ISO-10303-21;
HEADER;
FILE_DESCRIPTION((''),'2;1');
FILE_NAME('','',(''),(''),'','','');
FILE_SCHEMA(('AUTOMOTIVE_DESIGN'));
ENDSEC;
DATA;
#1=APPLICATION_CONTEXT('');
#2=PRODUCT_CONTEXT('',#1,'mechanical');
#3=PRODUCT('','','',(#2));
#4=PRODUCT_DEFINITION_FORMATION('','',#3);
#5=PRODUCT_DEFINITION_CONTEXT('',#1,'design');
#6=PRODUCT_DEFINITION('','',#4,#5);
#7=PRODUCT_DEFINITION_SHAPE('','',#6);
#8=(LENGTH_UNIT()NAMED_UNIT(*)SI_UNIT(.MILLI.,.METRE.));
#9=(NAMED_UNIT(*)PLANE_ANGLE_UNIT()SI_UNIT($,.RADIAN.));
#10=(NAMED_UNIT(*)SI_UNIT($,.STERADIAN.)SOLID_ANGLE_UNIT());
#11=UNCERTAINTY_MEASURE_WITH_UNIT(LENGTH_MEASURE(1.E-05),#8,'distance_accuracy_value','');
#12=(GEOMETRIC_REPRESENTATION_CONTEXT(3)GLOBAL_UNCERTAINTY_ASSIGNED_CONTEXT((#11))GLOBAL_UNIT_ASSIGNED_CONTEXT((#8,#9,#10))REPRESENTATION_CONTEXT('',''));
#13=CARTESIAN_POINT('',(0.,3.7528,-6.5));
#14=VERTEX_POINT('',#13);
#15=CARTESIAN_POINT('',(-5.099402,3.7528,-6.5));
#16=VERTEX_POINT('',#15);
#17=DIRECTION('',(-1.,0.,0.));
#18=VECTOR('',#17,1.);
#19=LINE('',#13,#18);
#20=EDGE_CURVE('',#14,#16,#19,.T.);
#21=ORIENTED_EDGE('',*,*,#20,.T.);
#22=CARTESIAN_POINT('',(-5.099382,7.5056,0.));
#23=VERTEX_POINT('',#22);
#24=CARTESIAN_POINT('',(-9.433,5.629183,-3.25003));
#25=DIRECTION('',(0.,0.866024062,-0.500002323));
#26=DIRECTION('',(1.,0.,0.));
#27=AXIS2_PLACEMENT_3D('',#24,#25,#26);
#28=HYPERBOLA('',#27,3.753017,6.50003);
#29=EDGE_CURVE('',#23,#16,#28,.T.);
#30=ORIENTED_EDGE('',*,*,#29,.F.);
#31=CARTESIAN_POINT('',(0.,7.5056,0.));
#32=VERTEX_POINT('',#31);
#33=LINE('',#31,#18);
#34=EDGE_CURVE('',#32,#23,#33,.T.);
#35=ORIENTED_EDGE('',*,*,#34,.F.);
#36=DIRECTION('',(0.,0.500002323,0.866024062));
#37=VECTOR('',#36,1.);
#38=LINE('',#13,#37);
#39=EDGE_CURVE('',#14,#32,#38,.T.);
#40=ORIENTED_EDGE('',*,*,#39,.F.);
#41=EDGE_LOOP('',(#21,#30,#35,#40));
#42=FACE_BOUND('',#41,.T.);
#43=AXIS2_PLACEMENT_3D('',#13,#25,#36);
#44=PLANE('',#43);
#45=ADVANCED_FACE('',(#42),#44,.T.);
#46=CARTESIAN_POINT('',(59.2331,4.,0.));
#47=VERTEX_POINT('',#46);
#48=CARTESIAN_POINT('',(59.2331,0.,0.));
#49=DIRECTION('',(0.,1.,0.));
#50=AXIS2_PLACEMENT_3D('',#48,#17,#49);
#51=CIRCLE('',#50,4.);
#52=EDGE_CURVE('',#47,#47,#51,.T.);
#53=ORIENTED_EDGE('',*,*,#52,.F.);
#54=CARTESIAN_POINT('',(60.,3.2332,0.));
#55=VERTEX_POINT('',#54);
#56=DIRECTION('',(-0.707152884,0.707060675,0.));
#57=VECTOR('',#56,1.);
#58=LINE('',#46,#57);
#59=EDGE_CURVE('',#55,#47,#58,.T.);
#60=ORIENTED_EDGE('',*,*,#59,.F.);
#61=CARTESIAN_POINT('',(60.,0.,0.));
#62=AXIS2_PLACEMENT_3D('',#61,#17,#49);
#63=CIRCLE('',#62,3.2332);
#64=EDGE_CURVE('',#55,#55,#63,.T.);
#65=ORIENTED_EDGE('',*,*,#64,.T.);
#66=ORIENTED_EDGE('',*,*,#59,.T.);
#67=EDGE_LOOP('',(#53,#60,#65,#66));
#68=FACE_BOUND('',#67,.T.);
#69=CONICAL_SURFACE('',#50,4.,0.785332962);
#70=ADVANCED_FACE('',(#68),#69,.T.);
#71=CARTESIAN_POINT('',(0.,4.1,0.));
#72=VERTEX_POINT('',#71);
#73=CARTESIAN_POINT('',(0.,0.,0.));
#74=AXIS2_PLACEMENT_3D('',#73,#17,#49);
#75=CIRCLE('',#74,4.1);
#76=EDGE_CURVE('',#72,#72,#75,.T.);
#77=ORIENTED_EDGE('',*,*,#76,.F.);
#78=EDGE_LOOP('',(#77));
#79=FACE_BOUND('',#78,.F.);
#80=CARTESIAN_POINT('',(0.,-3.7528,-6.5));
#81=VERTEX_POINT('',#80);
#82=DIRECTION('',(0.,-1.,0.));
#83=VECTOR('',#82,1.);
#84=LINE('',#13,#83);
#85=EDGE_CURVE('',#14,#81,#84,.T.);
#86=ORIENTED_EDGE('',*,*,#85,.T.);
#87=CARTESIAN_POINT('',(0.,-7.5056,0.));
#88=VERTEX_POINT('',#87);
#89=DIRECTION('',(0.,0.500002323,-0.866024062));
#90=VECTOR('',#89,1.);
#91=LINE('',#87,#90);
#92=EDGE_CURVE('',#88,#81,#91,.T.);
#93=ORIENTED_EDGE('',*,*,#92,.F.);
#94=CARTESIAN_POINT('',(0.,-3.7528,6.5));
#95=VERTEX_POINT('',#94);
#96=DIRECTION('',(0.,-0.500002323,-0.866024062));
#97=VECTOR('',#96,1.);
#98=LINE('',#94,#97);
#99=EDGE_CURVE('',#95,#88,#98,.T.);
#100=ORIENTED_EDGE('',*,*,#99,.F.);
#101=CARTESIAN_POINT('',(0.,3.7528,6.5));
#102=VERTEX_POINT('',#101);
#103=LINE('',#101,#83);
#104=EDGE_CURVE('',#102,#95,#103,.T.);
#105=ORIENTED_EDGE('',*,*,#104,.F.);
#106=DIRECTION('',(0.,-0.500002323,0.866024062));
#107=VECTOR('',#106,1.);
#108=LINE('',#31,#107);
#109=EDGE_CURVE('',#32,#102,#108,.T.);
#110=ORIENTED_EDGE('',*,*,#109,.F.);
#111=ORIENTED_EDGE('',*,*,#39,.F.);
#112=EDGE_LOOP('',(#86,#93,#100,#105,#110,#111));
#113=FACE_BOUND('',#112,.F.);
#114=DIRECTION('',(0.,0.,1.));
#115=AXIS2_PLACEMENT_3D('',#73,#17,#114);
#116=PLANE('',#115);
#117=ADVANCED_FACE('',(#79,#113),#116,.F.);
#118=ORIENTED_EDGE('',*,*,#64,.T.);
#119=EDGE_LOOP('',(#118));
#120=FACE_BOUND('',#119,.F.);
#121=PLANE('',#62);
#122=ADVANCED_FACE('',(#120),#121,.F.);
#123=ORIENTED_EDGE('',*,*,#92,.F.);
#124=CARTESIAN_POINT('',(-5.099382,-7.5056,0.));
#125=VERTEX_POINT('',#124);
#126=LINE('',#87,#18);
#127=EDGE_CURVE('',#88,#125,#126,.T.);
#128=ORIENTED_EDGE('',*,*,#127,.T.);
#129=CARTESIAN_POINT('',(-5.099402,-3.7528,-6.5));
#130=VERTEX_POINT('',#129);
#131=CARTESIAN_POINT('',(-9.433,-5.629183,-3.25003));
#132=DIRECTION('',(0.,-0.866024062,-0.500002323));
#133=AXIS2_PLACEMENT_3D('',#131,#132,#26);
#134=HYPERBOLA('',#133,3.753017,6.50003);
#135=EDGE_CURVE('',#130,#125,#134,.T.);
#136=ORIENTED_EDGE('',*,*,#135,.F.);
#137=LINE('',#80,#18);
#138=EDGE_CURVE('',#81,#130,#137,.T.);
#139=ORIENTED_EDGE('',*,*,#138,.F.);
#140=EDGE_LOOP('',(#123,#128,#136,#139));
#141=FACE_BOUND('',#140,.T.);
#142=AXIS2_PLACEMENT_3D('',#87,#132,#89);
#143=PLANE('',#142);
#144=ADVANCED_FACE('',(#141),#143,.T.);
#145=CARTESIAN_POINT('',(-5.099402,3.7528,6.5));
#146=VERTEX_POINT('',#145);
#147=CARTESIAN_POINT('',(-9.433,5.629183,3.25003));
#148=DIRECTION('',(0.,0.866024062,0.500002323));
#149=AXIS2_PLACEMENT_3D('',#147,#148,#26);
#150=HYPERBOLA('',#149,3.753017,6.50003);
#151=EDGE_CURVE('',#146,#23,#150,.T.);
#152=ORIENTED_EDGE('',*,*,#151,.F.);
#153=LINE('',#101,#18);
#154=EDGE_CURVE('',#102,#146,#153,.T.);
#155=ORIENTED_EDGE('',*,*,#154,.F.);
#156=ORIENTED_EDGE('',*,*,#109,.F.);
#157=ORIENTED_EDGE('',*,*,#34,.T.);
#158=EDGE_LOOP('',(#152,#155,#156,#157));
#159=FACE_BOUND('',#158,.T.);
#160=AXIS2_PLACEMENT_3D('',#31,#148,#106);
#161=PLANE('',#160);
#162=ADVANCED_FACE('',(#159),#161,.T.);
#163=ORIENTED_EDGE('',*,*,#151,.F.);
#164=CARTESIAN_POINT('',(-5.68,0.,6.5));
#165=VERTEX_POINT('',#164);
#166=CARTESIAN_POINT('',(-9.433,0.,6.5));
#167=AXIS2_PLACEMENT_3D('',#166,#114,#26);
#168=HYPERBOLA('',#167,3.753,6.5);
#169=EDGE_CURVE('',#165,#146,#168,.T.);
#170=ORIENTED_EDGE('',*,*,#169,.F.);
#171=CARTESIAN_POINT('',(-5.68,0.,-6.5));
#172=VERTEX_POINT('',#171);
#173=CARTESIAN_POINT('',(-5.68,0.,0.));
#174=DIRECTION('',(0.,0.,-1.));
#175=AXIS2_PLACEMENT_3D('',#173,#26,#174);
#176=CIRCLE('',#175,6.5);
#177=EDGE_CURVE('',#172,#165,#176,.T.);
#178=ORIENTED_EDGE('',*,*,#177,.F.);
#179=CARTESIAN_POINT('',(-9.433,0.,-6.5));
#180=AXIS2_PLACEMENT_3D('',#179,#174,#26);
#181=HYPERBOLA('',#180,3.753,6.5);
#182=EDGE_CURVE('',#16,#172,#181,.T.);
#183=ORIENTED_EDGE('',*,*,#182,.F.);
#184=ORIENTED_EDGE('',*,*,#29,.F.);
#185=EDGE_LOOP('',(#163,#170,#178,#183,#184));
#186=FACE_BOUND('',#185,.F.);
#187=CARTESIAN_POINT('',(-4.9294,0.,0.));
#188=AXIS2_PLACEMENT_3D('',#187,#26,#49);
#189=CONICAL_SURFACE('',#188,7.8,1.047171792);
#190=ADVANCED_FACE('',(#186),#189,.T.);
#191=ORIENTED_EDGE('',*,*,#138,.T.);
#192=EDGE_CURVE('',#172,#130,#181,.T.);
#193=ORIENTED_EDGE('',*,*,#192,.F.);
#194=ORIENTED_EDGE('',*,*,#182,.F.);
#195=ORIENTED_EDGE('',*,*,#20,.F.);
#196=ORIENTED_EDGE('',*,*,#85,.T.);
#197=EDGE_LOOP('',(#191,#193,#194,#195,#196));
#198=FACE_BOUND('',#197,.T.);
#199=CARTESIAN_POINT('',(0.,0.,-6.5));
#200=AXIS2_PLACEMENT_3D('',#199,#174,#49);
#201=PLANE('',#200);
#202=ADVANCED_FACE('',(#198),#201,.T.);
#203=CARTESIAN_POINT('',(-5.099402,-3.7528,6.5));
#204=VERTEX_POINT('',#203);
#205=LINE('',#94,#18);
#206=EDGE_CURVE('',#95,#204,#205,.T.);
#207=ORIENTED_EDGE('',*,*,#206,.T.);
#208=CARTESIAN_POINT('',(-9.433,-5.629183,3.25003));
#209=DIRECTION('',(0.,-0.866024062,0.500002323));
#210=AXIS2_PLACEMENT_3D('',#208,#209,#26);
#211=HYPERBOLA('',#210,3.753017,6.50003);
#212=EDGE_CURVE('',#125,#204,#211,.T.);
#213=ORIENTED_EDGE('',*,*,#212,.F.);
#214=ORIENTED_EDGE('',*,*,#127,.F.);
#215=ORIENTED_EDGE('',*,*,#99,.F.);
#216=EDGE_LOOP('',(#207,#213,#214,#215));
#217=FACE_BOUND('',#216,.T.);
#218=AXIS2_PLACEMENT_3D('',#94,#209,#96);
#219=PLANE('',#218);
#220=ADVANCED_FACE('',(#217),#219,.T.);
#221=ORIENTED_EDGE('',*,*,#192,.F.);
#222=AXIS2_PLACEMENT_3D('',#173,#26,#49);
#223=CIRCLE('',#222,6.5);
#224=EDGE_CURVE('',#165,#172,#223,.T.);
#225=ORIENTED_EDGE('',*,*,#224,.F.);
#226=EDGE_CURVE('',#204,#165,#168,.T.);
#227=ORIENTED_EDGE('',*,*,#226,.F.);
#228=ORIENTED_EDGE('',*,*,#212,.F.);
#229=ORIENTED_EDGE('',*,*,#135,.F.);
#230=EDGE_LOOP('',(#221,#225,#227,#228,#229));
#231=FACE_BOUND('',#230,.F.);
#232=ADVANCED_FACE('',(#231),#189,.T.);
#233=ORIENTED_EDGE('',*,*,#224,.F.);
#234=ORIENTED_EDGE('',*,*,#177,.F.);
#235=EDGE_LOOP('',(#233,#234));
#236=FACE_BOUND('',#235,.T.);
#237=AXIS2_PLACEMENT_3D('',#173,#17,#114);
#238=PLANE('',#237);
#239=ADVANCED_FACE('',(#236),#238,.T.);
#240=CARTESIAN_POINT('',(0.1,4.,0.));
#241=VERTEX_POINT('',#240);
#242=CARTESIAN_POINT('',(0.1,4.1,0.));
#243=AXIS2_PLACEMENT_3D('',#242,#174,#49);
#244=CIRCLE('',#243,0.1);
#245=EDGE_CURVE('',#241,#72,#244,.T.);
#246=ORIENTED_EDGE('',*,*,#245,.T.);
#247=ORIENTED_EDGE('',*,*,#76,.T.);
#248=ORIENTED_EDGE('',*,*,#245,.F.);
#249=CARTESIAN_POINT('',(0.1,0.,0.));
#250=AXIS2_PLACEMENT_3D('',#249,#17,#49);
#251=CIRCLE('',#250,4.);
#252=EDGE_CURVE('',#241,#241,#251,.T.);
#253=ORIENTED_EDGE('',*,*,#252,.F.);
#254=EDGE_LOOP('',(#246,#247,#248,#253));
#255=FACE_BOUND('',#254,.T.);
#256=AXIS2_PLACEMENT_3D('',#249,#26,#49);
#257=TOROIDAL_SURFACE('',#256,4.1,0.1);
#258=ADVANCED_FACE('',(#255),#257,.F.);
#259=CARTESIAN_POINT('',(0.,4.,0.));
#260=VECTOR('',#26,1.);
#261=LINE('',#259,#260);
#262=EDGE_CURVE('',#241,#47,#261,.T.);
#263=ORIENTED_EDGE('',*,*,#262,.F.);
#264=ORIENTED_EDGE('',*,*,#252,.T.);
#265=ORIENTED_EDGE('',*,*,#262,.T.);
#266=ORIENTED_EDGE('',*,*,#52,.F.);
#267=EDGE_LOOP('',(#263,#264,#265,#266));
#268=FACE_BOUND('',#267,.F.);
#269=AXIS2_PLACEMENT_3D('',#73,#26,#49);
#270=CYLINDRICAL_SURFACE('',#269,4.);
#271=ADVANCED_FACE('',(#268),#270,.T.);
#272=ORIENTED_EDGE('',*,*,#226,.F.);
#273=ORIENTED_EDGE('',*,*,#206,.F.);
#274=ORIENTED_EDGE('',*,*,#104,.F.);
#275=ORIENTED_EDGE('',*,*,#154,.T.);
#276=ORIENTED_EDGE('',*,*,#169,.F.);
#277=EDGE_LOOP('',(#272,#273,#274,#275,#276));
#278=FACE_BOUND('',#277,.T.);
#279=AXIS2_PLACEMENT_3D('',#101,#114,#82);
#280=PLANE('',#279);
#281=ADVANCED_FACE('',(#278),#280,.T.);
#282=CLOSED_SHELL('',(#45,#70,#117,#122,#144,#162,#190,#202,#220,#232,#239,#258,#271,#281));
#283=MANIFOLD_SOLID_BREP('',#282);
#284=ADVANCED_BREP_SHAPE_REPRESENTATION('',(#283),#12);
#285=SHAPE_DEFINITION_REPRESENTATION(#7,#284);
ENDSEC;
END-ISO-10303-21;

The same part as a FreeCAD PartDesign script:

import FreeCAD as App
import Part
import Sketcher
Q = App.Units.Quantity


def edges_at(feature, points):
    """Names of the edges that pass closest to the given points."""
    edges = feature.Shape.Edges
    near = lambda p: min(range(len(edges)), key=lambda i: edges[i].distToShape(Part.Vertex(*p))[0])
    return sorted({f"Edge{near(p) + 1}" for p in points})


def add_polygon(sketch, points):
    """Adds a closed chain of lines whose ends are joined by coincident constraints."""
    first, n = sketch.GeometryCount, len(points)
    for a, b in zip(points, points[1:] + points[:1]):
        sketch.addGeometry(Part.LineSegment(App.Vector(*a, 0), App.Vector(*b, 0)), False)
    for i in range(n):
        sketch.addConstraint(Sketcher.Constraint("Coincident", first + i, 2, first + (i + 1) % n, 1))

doc = App.newDocument("Part")
body = doc.addObject("PartDesign::Body", "Body")

# Sketch on XY plane
sketch1 = doc.addObject("Sketcher::SketchObject", "Sketch")
body.addObject(sketch1)
sketch1.AttachmentSupport = (doc.XY_Plane, [""])
sketch1.MapMode = "FlatFace"
add_polygon(sketch1, [(60, 4), (0, 4), (0, 0), (60, 0)])  # lines 0-3
sketch1.addConstraint(Sketcher.Constraint("Horizontal", 0))
sketch1.addConstraint(Sketcher.Constraint("Vertical", 1))
sketch1.addConstraint(Sketcher.Constraint("Horizontal", 2))
sketch1.addConstraint(Sketcher.Constraint("Vertical", 3))
sketch1.addConstraint(Sketcher.Constraint("Coincident", 1, 2, -1, 1))
sketch1.addConstraint(Sketcher.Constraint("DistanceX", 0, 2, 0, 1, Q("60 mm")))
sketch1.addConstraint(Sketcher.Constraint("DistanceY", 1, 2, 1, 1, Q("4 mm")))
revolution = doc.addObject("PartDesign::Revolution", "Revolution")
body.addObject(revolution)
revolution.Profile = sketch1
revolution.ReferenceAxis = (sketch1, ["H_Axis"])
revolution.Angle = 360

# Sketch on YZ plane
sketch2 = doc.addObject("Sketcher::SketchObject", "Sketch001")
body.addObject(sketch2)
sketch2.AttachmentSupport = (doc.YZ_Plane, [""])
sketch2.MapMode = "FlatFace"
add_polygon(sketch2, [(3.7528, -6.5), (-3.7528, -6.5), (-7.5056, 0), (-3.7528, 6.5), (3.7528, 6.5), (7.5056, 0)])  # lines 0-5
sketch2.addConstraint(Sketcher.Constraint("Horizontal", 0))
sketch2.addConstraint(Sketcher.Constraint("Horizontal", 3))
sketch2.addConstraint(Sketcher.Constraint("Symmetric", 0, 2, 3, 2, -1, 1))
sketch2.addConstraint(Sketcher.Constraint("Symmetric", 1, 2, 4, 2, -1, 1))
sketch2.addConstraint(Sketcher.Constraint("PointOnObject", 1, 2, -1))
sketch2.addConstraint(Sketcher.Constraint("Parallel", 2, 5))
sketch2.addConstraint(Sketcher.Constraint("Vertical", 0, 2, 2, 2))
sketch2.addConstraint(Sketcher.Constraint("DistanceY", 0, 2, 2, 2, Q("13 mm")))
sketch2.addConstraint(Sketcher.Constraint("Angle", 1, Q("120.0002 deg")))
sketch2.addConstraint(Sketcher.Constraint("DistanceX", 0, 2, 0, 1, Q("7.5056 mm")))
pad1 = doc.addObject("PartDesign::Pad", "Pad")
body.addObject(pad1)
pad1.Profile = sketch2
pad1.Length = 5.68
pad1.Reversed = True

# Sketch on XY plane
sketch3 = doc.addObject("Sketcher::SketchObject", "Sketch002")
body.addObject(sketch3)
sketch3.AttachmentSupport = (doc.XY_Plane, [""])
sketch3.MapMode = "FlatFace"
add_polygon(sketch3, [(-5.68, 6.5), (-4.9294, 7.8), (-5.68, 7.8)])  # lines 0-2
sketch3.addConstraint(Sketcher.Constraint("Horizontal", 1))
sketch3.addConstraint(Sketcher.Constraint("Vertical", 2))
sketch3.addConstraint(Sketcher.Constraint("DistanceX", 1, 2, -1, 1, Q("5.68 mm")))
sketch3.addConstraint(Sketcher.Constraint("DistanceY", 2, 2, 2, 1, Q("1.3 mm")))
sketch3.addConstraint(Sketcher.Constraint("DistanceY", -1, 1, 0, 2, Q("7.8 mm")))
sketch3.addConstraint(Sketcher.Constraint("DistanceX", 1, 2, 1, 1, Q("0.7506 mm")))
groove = doc.addObject("PartDesign::Groove", "Groove")
body.addObject(groove)
groove.Profile = sketch3
groove.ReferenceAxis = (sketch3, ["H_Axis"])
groove.Angle = 360
doc.recompute()

chamfer = doc.addObject("PartDesign::Chamfer", "Chamfer")
body.addObject(chamfer)
chamfer.Base = (groove, edges_at(groove, [(60, -4, 0)]))
chamfer.ChamferType = "Two distances"
chamfer.Size = 0.7668
chamfer.Size2 = 0.7669
doc.recompute()

fillet = doc.addObject("PartDesign::Fillet", "Fillet")
body.addObject(fillet)
fillet.Base = (chamfer, edges_at(chamfer, [(0, -4, 0)]))
fillet.Radius = 0.1

doc.recompute()
